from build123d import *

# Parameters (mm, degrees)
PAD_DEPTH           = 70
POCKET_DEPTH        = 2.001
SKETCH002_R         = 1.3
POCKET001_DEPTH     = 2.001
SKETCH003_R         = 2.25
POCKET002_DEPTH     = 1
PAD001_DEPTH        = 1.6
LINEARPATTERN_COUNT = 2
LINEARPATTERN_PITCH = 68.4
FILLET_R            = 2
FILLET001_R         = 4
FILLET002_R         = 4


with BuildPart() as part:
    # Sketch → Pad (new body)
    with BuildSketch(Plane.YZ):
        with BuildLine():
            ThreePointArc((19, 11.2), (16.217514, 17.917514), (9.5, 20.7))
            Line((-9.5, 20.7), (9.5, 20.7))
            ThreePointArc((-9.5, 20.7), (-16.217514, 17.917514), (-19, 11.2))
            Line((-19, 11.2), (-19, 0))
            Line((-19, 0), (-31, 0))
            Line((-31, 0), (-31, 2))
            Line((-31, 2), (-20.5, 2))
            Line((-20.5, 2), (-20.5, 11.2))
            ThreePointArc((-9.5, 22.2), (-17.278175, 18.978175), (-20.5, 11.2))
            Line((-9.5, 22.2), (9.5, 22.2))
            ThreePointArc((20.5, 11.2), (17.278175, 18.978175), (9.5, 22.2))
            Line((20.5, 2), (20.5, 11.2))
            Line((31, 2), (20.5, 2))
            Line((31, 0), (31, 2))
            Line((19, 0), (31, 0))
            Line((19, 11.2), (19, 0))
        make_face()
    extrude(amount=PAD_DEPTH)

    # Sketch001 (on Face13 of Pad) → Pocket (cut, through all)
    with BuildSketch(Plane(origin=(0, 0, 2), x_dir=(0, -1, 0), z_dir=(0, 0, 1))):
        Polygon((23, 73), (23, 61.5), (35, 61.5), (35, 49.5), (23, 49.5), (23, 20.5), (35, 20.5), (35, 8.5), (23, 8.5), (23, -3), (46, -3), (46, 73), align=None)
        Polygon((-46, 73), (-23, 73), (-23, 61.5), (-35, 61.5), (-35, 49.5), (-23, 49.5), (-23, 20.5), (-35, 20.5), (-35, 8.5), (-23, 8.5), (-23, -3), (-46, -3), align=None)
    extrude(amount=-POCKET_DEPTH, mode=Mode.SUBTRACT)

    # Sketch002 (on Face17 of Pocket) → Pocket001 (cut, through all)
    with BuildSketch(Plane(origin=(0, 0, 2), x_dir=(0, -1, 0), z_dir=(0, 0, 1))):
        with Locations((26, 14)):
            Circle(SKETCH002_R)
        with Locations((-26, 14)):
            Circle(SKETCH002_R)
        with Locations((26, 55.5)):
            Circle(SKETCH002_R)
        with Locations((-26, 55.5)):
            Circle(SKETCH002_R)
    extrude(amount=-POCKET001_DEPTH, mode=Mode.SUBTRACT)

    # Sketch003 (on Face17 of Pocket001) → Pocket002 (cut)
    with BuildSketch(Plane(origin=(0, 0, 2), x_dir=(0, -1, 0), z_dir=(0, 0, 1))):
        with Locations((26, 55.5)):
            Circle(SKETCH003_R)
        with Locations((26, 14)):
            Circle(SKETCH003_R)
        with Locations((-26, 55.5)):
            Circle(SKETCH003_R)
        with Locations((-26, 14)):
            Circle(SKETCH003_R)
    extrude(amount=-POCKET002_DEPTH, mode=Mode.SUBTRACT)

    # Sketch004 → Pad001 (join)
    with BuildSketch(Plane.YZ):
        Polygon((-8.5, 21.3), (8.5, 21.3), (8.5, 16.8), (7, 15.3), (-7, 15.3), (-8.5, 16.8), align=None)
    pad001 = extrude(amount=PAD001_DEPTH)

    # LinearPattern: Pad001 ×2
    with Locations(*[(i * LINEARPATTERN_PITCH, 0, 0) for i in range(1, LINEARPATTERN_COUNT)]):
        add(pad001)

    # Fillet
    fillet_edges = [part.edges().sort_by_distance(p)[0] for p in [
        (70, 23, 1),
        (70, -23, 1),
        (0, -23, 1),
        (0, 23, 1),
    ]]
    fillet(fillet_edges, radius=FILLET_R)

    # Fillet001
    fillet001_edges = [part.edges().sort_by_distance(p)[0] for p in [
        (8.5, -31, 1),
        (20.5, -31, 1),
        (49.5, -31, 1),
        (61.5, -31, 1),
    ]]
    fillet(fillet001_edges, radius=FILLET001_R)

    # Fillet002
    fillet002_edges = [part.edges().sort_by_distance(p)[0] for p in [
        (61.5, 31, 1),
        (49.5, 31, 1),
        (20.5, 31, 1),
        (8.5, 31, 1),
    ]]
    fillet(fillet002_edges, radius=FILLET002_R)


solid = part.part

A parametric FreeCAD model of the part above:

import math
import FreeCAD as App
import Part
import Sketcher
Q = App.Units.Quantity


def edges_at(feature, points):
    """Names of the edges that pass closest to the given points."""
    edges = feature.Shape.Edges
    near = lambda p: min(range(len(edges)), key=lambda i: edges[i].distToShape(Part.Vertex(*p))[0])
    return sorted({f"Edge{near(p) + 1}" for p in points})


def add_polygon(sketch, points):
    """Adds a closed chain of lines whose ends are joined by coincident constraints."""
    first, n = sketch.GeometryCount, len(points)
    for a, b in zip(points, points[1:] + points[:1]):
        sketch.addGeometry(Part.LineSegment(App.Vector(*a, 0), App.Vector(*b, 0)), False)
    for i in range(n):
        sketch.addConstraint(Sketcher.Constraint("Coincident", first + i, 2, first + (i + 1) % n, 1))

doc = App.newDocument("Part")
body = doc.addObject("PartDesign::Body", "Body")

# Sketch on YZ plane
sketch1 = body.newObject("Sketcher::SketchObject", "Sketch")
sketch1.AttachmentSupport = (doc.getObject("YZ_Plane"), [""])
sketch1.MapMode = "FlatFace"
sketch1.addGeometry(Part.ArcOfCircle(Part.Circle(App.Vector(9.5, 11.2, 0), App.Vector(0, 0, 1), 9.5), math.radians(0), math.radians(90)), False)
sketch1.addGeometry(Part.LineSegment(App.Vector(19, 11.2, 0), App.Vector(19, 0, 0)), False)
sketch1.addGeometry(Part.LineSegment(App.Vector(19, 0, 0), App.Vector(31, 0, 0)), False)
sketch1.addGeometry(Part.LineSegment(App.Vector(31, 0, 0), App.Vector(31, 2, 0)), False)
sketch1.addGeometry(Part.LineSegment(App.Vector(31, 2, 0), App.Vector(20.5, 2, 0)), False)
sketch1.addGeometry(Part.LineSegment(App.Vector(20.5, 2, 0), App.Vector(20.5, 11.2, 0)), False)
sketch1.addGeometry(Part.ArcOfCircle(Part.Circle(App.Vector(9.5, 11.2, 0), App.Vector(0, 0, 1), 11), math.radians(0), math.radians(90)), False)
sketch1.addGeometry(Part.LineSegment(App.Vector(9.5, 22.2, 0), App.Vector(-9.5, 22.2, 0)), False)
sketch1.addGeometry(Part.ArcOfCircle(Part.Circle(App.Vector(-9.5, 11.2, 0), App.Vector(0, 0, 1), 11), math.radians(90), math.radians(180)), False)
sketch1.addGeometry(Part.LineSegment(App.Vector(-20.5, 11.2, 0), App.Vector(-20.5, 2, 0)), False)
sketch1.addGeometry(Part.LineSegment(App.Vector(-20.5, 2, 0), App.Vector(-31, 2, 0)), False)
sketch1.addGeometry(Part.LineSegment(App.Vector(-31, 2, 0), App.Vector(-31, 0, 0)), False)
sketch1.addGeometry(Part.LineSegment(App.Vector(-31, 0, 0), App.Vector(-19, 0, 0)), False)
sketch1.addGeometry(Part.LineSegment(App.Vector(-19, 0, 0), App.Vector(-19, 11.2, 0)), False)
sketch1.addGeometry(Part.ArcOfCircle(Part.Circle(App.Vector(-9.5, 11.2, 0), App.Vector(0, 0, 1), 9.5), math.radians(90), math.radians(180)), False)
sketch1.addGeometry(Part.LineSegment(App.Vector(-9.5, 20.7, 0), App.Vector(9.5, 20.7, 0)), False)
sketch1.addConstraint(Sketcher.Constraint("Tangent", 0, 1, 1, 1))
sketch1.addConstraint(Sketcher.Constraint("Coincident", 1, 2, 2, 1))
sketch1.addConstraint(Sketcher.Constraint("Coincident", 2, 2, 3, 1))
sketch1.addConstraint(Sketcher.Constraint("Coincident", 3, 2, 4, 1))
sketch1.addConstraint(Sketcher.Constraint("Coincident", 4, 2, 5, 1))
sketch1.addConstraint(Sketcher.Constraint("Tangent", 5, 2, 6, 1))
sketch1.addConstraint(Sketcher.Constraint("Tangent", 6, 2, 7, 1))
sketch1.addConstraint(Sketcher.Constraint("Tangent", 7, 2, 8, 1))
sketch1.addConstraint(Sketcher.Constraint("Tangent", 8, 2, 9, 1))
sketch1.addConstraint(Sketcher.Constraint("Coincident", 9, 2, 10, 1))
sketch1.addConstraint(Sketcher.Constraint("Coincident", 10, 2, 11, 1))
sketch1.addConstraint(Sketcher.Constraint("Coincident", 11, 2, 12, 1))
sketch1.addConstraint(Sketcher.Constraint("Coincident", 12, 2, 13, 1))
sketch1.addConstraint(Sketcher.Constraint("Tangent", 13, 2, 14, 2))
sketch1.addConstraint(Sketcher.Constraint("Tangent", 14, 1, 15, 1))
sketch1.addConstraint(Sketcher.Constraint("Tangent", 15, 2, 0, 2))
sketch1.addConstraint(Sketcher.Constraint("Vertical", 1))
sketch1.addConstraint(Sketcher.Constraint("Horizontal", 2))
sketch1.addConstraint(Sketcher.Constraint("Vertical", 3))
sketch1.addConstraint(Sketcher.Constraint("Horizontal", 4))
sketch1.addConstraint(Sketcher.Constraint("Vertical", 5))
sketch1.addConstraint(Sketcher.Constraint("Horizontal", 7))
sketch1.addConstraint(Sketcher.Constraint("Vertical", 9))
sketch1.addConstraint(Sketcher.Constraint("Horizontal", 10))
sketch1.addConstraint(Sketcher.Constraint("Vertical", 11))
sketch1.addConstraint(Sketcher.Constraint("Horizontal", 12))
sketch1.addConstraint(Sketcher.Constraint("Vertical", 13))
sketch1.addConstraint(Sketcher.Constraint("Horizontal", 15))
sketch1.addConstraint(Sketcher.Constraint("Coincident", 6, 3, 0, 3))
sketch1.addConstraint(Sketcher.Constraint("Coincident", 14, 3, 8, 3))
sketch1.addConstraint(Sketcher.Constraint("Equal", 6, 8))
sketch1.addConstraint(Sketcher.Constraint("Symmetric", 2, 2, 11, 2, -1, 1))
sketch1.addConstraint(Sketcher.Constraint("Symmetric", 4, 2, 9, 2, -2))
sketch1.addConstraint(Sketcher.Constraint("PointOnObject", 1, 2, -1))
sketch1.addConstraint(Sketcher.Constraint("Radius", 6, Q("10.999999 mm")))
sketch1.addConstraint(Sketcher.Constraint("Radius", 0, Q("9.500001 mm")))
sketch1.addConstraint(Sketcher.Constraint("DistanceX", 2, 1, 2, 2, Q("12 mm")))
sketch1.addConstraint(Sketcher.Constraint("DistanceX", 7, 2, 7, 1, Q("19 mm")))
sketch1.addConstraint(Sketcher.Constraint("DistanceY", 3, 1, 3, 2, Q("2 mm")))
sketch1.addConstraint(Sketcher.Constraint("DistanceY", 1, 2, 1, 1, Q("11.2 mm")))
pad1 = body.newObject("PartDesign::Pad", "Pad")
pad1.Profile = sketch1
pad1.Length = 70

# Sketch on XY plane
sketch2 = body.newObject("Sketcher::SketchObject", "Sketch001")
sketch2.AttachmentSupport = (doc.getObject("XY_Plane"), [""])
sketch2.MapMode = "FlatFace"
sketch2.AttachmentOffset = App.Placement(App.Vector(0, 0, 2), App.Rotation())
add_polygon(sketch2, [(73, -23), (62, -23), (62, -35), (50, -35), (50, -23), (20, -23), (20, -35), (8, -35), (8, -23), (-3, -23), (-3, -46), (73, -46)])  # lines 0-11
add_polygon(sketch2, [(73, 23), (73, 46), (-3, 46), (-3, 23), (8, 23), (8, 35), (20, 35), (20, 23), (50, 23), (50, 35), (62, 35), (62, 23)])  # lines 12-23
sketch2.addConstraint(Sketcher.Constraint("Horizontal", 0))
sketch2.addConstraint(Sketcher.Constraint("Vertical", 1))
sketch2.addConstraint(Sketcher.Constraint("Horizontal", 2))
sketch2.addConstraint(Sketcher.Constraint("Vertical", 3))
sketch2.addConstraint(Sketcher.Constraint("Horizontal", 4))
sketch2.addConstraint(Sketcher.Constraint("Vertical", 5))
sketch2.addConstraint(Sketcher.Constraint("Horizontal", 6))
sketch2.addConstraint(Sketcher.Constraint("Vertical", 7))
sketch2.addConstraint(Sketcher.Constraint("Horizontal", 8))
sketch2.addConstraint(Sketcher.Constraint("Vertical", 9))
sketch2.addConstraint(Sketcher.Constraint("Horizontal", 10))
sketch2.addConstraint(Sketcher.Constraint("Vertical", 11))
sketch2.addConstraint(Sketcher.Constraint("Vertical", 12))
sketch2.addConstraint(Sketcher.Constraint("Horizontal", 13))
sketch2.addConstraint(Sketcher.Constraint("Vertical", 14))
sketch2.addConstraint(Sketcher.Constraint("Horizontal", 15))
sketch2.addConstraint(Sketcher.Constraint("Vertical", 16))
sketch2.addConstraint(Sketcher.Constraint("Horizontal", 17))
sketch2.addConstraint(Sketcher.Constraint("Vertical", 18))
sketch2.addConstraint(Sketcher.Constraint("Horizontal", 19))
sketch2.addConstraint(Sketcher.Constraint("Vertical", 20))
sketch2.addConstraint(Sketcher.Constraint("Horizontal", 21))
sketch2.addConstraint(Sketcher.Constraint("Vertical", 22))
sketch2.addConstraint(Sketcher.Constraint("Horizontal", 23))
sketch2.addConstraint(Sketcher.Constraint("Symmetric", 10, 2, 12, 2, -1))
sketch2.addConstraint(Sketcher.Constraint("Symmetric", 8, 2, 14, 2, -1))
sketch2.addConstraint(Sketcher.Constraint("Symmetric", 6, 2, 16, 2, -1))
sketch2.addConstraint(Sketcher.Constraint("Symmetric", 4, 2, 18, 2, -1))
sketch2.addConstraint(Sketcher.Constraint("Symmetric", 2, 2, 20, 2, -1))
sketch2.addConstraint(Sketcher.Constraint("Symmetric", 0, 2, 22, 2, -1))
sketch2.addConstraint(Sketcher.Constraint("Horizontal", 0, 2, 3, 2))
sketch2.addConstraint(Sketcher.Constraint("Horizontal", 2, 2, 5, 2))
sketch2.addConstraint(Sketcher.Constraint("Horizontal", 4, 2, 7, 2))
sketch2.addConstraint(Sketcher.Constraint("Equal", 2, 6))
sketch2.addConstraint(Sketcher.Constraint("Equal", 0, 8))
sketch2.addConstraint(Sketcher.Constraint("Equal", 21, 1))
sketch2.addConstraint(Sketcher.Constraint("DistanceX", 2, 2, 2, 1, Q("12 mm")))
sketch2.addConstraint(Sketcher.Constraint("DistanceX", 4, 2, 4, 1, Q("29 mm")))
sketch2.addConstraint(Sketcher.Constraint("DistanceX", 10, 1, 10, 2, Q("76 mm")))
sketch2.addConstraint(Sketcher.Constraint("DistanceY", 9, 2, 9, 1, Q("23 mm")))
sketch2.addConstraint(Sketcher.Constraint("DistanceY", 0, 2, -1, 1, Q("23 mm")))
sketch2.addConstraint(Sketcher.Constraint("DistanceX", 8, 2, -1, 1, Q("3 mm")))
pocket1 = body.newObject("PartDesign::Pocket", "Pocket")
pocket1.Profile = sketch2
pocket1.Type = "ThroughAll"

# Sketch on XY plane
sketch3 = body.newObject("Sketcher::SketchObject", "Sketch002")
sketch3.AttachmentSupport = (doc.getObject("XY_Plane"), [""])
sketch3.MapMode = "FlatFace"
sketch3.AttachmentOffset = App.Placement(App.Vector(0, 0, 2), App.Rotation())
sketch3.addGeometry(Part.Circle(App.Vector(14, -26, 0), App.Vector(0, 0, 1), 1.3), False)
sketch3.addGeometry(Part.Circle(App.Vector(14, 26, 0), App.Vector(0, 0, 1), 1.3), False)
sketch3.addGeometry(Part.Circle(App.Vector(55.5, -26, 0), App.Vector(0, 0, 1), 1.3), False)
sketch3.addGeometry(Part.Circle(App.Vector(55.5, 26, 0), App.Vector(0, 0, 1), 1.3), False)
sketch3.addConstraint(Sketcher.Constraint("Equal", 0, 1))
sketch3.addConstraint(Sketcher.Constraint("Equal", 1, 2))
sketch3.addConstraint(Sketcher.Constraint("Equal", 2, 3))
sketch3.addConstraint(Sketcher.Constraint("Symmetric", 0, 3, 1, 3, -1))
sketch3.addConstraint(Sketcher.Constraint("Symmetric", 2, 3, 3, 3, -1))
sketch3.addConstraint(Sketcher.Constraint("Horizontal", 0, 3, 2, 3))
sketch3.addConstraint(Sketcher.Constraint("Diameter", 0, Q("2.6 mm")))
sketch3.addConstraint(Sketcher.Constraint("DistanceX", -1, 1, 0, 3, Q("14 mm")))
sketch3.addConstraint(Sketcher.Constraint("DistanceY", 0, 3, -1, 1, Q("26 mm")))
sketch3.addConstraint(Sketcher.Constraint("DistanceX", -1, 1, 2, 3, Q("55.5 mm")))
pocket2 = body.newObject("PartDesign::Pocket", "Pocket001")
pocket2.Profile = sketch3
pocket2.Type = "ThroughAll"

# Sketch on XY plane
sketch4 = body.newObject("Sketcher::SketchObject", "Sketch003")
sketch4.AttachmentSupport = (doc.getObject("XY_Plane"), [""])
sketch4.MapMode = "FlatFace"
sketch4.AttachmentOffset = App.Placement(App.Vector(0, 0, 2), App.Rotation())
sketch4.addGeometry(Part.Circle(App.Vector(55.5, -26, 0), App.Vector(0, 0, 1), 2.2), False)
sketch4.addGeometry(Part.Circle(App.Vector(14, -26, 0), App.Vector(0, 0, 1), 2.2), False)
sketch4.addGeometry(Part.Circle(App.Vector(55.5, 26, 0), App.Vector(0, 0, 1), 2.2), False)
sketch4.addGeometry(Part.Circle(App.Vector(14, 26, 0), App.Vector(0, 0, 1), 2.2), False)
sketch4.addConstraint(Sketcher.Constraint("Equal", 0, 1))
sketch4.addConstraint(Sketcher.Constraint("Equal", 1, 2))
sketch4.addConstraint(Sketcher.Constraint("Equal", 2, 3))
sketch4.addConstraint(Sketcher.Constraint("Symmetric", 0, 3, 2, 3, -1))
sketch4.addConstraint(Sketcher.Constraint("Symmetric", 1, 3, 3, 3, -1))
sketch4.addConstraint(Sketcher.Constraint("Horizontal", 0, 3, 1, 3))
sketch4.addConstraint(Sketcher.Constraint("Diameter", 0, Q("4.5 mm")))
sketch4.addConstraint(Sketcher.Constraint("DistanceY", 0, 3, -1, 1, Q("26 mm")))
sketch4.addConstraint(Sketcher.Constraint("DistanceX", -1, 1, 1, 3, Q("14 mm")))
sketch4.addConstraint(Sketcher.Constraint("DistanceX", -1, 1, 0, 3, Q("55.5 mm")))
pocket3 = body.newObject("PartDesign::Pocket", "Pocket002")
pocket3.Profile = sketch4
pocket3.Length = 1

# Sketch on YZ plane
sketch5 = body.newObject("Sketcher::SketchObject", "Sketch004")
sketch5.AttachmentSupport = (doc.getObject("YZ_Plane"), [""])
sketch5.MapMode = "FlatFace"
add_polygon(sketch5, [(8.5, 21.3), (-8.5, 21.3), (-8.5, 16.8), (-7, 15.3), (7, 15.3), (8.5, 16.8)])  # lines 0-5
sketch5.addConstraint(Sketcher.Constraint("Horizontal", 0))
sketch5.addConstraint(Sketcher.Constraint("Vertical", 1))
sketch5.addConstraint(Sketcher.Constraint("Horizontal", 3))
sketch5.addConstraint(Sketcher.Constraint("Vertical", 5))
sketch5.addConstraint(Sketcher.Constraint("Symmetric", 1, 2, 4, 2, -2))
sketch5.addConstraint(Sketcher.Constraint("Perpendicular", 2, 4))
sketch5.addConstraint(Sketcher.Constraint("Equal", 2, 4))
sketch5.addConstraint(Sketcher.Constraint("DistanceX", 0, 2, 0, 1, Q("17 mm")))
sketch5.addConstraint(Sketcher.Constraint("DistanceX", 3, 1, 3, 2, Q("14 mm")))
sketch5.addConstraint(Sketcher.Constraint("DistanceY", 1, 2, 1, 1, Q("4.5 mm")))
sketch5.addConstraint(Sketcher.Constraint("DistanceY", -1, 1, 0, 2, Q("21.3 mm")))
pad2 = body.newObject("PartDesign::Pad", "Pad001")
pad2.Profile = sketch5
pad2.Length = 1.6
doc.recompute()

linearpattern = body.newObject("PartDesign::LinearPattern", "LinearPattern")
linearpattern.Originals = [pad2]
linearpattern.Direction = (doc.getObject("X_Axis"), [""])
linearpattern.Mode = "offset"
linearpattern.Offset = 68.4
linearpattern.Occurrences = 2
body.Tip = linearpattern
doc.recompute()

fillet = body.newObject("PartDesign::Fillet", "Fillet")
fillet.Base = (linearpattern, edges_at(linearpattern, [
    (70, 23, 1),
    (70, -23, 1),
    (0, -23, 1),
    (0, 23, 1),
]))
fillet.Radius = 2
doc.recompute()

fillet2 = body.newObject("PartDesign::Fillet", "Fillet001")
fillet2.Base = (fillet, edges_at(fillet, [
    (8.5, -31, 1),
    (20.5, -31, 1),
    (49.5, -31, 1),
    (61.5, -31, 1),
]))
fillet2.Radius = 4
doc.recompute()

fillet3 = body.newObject("PartDesign::Fillet", "Fillet002")
fillet3.Base = (fillet2, edges_at(fillet2, [
    (61.5, 31, 1),
    (49.5, 31, 1),
    (20.5, 31, 1),
    (8.5, 31, 1),
]))
fillet3.Radius = 4

doc.recompute()
